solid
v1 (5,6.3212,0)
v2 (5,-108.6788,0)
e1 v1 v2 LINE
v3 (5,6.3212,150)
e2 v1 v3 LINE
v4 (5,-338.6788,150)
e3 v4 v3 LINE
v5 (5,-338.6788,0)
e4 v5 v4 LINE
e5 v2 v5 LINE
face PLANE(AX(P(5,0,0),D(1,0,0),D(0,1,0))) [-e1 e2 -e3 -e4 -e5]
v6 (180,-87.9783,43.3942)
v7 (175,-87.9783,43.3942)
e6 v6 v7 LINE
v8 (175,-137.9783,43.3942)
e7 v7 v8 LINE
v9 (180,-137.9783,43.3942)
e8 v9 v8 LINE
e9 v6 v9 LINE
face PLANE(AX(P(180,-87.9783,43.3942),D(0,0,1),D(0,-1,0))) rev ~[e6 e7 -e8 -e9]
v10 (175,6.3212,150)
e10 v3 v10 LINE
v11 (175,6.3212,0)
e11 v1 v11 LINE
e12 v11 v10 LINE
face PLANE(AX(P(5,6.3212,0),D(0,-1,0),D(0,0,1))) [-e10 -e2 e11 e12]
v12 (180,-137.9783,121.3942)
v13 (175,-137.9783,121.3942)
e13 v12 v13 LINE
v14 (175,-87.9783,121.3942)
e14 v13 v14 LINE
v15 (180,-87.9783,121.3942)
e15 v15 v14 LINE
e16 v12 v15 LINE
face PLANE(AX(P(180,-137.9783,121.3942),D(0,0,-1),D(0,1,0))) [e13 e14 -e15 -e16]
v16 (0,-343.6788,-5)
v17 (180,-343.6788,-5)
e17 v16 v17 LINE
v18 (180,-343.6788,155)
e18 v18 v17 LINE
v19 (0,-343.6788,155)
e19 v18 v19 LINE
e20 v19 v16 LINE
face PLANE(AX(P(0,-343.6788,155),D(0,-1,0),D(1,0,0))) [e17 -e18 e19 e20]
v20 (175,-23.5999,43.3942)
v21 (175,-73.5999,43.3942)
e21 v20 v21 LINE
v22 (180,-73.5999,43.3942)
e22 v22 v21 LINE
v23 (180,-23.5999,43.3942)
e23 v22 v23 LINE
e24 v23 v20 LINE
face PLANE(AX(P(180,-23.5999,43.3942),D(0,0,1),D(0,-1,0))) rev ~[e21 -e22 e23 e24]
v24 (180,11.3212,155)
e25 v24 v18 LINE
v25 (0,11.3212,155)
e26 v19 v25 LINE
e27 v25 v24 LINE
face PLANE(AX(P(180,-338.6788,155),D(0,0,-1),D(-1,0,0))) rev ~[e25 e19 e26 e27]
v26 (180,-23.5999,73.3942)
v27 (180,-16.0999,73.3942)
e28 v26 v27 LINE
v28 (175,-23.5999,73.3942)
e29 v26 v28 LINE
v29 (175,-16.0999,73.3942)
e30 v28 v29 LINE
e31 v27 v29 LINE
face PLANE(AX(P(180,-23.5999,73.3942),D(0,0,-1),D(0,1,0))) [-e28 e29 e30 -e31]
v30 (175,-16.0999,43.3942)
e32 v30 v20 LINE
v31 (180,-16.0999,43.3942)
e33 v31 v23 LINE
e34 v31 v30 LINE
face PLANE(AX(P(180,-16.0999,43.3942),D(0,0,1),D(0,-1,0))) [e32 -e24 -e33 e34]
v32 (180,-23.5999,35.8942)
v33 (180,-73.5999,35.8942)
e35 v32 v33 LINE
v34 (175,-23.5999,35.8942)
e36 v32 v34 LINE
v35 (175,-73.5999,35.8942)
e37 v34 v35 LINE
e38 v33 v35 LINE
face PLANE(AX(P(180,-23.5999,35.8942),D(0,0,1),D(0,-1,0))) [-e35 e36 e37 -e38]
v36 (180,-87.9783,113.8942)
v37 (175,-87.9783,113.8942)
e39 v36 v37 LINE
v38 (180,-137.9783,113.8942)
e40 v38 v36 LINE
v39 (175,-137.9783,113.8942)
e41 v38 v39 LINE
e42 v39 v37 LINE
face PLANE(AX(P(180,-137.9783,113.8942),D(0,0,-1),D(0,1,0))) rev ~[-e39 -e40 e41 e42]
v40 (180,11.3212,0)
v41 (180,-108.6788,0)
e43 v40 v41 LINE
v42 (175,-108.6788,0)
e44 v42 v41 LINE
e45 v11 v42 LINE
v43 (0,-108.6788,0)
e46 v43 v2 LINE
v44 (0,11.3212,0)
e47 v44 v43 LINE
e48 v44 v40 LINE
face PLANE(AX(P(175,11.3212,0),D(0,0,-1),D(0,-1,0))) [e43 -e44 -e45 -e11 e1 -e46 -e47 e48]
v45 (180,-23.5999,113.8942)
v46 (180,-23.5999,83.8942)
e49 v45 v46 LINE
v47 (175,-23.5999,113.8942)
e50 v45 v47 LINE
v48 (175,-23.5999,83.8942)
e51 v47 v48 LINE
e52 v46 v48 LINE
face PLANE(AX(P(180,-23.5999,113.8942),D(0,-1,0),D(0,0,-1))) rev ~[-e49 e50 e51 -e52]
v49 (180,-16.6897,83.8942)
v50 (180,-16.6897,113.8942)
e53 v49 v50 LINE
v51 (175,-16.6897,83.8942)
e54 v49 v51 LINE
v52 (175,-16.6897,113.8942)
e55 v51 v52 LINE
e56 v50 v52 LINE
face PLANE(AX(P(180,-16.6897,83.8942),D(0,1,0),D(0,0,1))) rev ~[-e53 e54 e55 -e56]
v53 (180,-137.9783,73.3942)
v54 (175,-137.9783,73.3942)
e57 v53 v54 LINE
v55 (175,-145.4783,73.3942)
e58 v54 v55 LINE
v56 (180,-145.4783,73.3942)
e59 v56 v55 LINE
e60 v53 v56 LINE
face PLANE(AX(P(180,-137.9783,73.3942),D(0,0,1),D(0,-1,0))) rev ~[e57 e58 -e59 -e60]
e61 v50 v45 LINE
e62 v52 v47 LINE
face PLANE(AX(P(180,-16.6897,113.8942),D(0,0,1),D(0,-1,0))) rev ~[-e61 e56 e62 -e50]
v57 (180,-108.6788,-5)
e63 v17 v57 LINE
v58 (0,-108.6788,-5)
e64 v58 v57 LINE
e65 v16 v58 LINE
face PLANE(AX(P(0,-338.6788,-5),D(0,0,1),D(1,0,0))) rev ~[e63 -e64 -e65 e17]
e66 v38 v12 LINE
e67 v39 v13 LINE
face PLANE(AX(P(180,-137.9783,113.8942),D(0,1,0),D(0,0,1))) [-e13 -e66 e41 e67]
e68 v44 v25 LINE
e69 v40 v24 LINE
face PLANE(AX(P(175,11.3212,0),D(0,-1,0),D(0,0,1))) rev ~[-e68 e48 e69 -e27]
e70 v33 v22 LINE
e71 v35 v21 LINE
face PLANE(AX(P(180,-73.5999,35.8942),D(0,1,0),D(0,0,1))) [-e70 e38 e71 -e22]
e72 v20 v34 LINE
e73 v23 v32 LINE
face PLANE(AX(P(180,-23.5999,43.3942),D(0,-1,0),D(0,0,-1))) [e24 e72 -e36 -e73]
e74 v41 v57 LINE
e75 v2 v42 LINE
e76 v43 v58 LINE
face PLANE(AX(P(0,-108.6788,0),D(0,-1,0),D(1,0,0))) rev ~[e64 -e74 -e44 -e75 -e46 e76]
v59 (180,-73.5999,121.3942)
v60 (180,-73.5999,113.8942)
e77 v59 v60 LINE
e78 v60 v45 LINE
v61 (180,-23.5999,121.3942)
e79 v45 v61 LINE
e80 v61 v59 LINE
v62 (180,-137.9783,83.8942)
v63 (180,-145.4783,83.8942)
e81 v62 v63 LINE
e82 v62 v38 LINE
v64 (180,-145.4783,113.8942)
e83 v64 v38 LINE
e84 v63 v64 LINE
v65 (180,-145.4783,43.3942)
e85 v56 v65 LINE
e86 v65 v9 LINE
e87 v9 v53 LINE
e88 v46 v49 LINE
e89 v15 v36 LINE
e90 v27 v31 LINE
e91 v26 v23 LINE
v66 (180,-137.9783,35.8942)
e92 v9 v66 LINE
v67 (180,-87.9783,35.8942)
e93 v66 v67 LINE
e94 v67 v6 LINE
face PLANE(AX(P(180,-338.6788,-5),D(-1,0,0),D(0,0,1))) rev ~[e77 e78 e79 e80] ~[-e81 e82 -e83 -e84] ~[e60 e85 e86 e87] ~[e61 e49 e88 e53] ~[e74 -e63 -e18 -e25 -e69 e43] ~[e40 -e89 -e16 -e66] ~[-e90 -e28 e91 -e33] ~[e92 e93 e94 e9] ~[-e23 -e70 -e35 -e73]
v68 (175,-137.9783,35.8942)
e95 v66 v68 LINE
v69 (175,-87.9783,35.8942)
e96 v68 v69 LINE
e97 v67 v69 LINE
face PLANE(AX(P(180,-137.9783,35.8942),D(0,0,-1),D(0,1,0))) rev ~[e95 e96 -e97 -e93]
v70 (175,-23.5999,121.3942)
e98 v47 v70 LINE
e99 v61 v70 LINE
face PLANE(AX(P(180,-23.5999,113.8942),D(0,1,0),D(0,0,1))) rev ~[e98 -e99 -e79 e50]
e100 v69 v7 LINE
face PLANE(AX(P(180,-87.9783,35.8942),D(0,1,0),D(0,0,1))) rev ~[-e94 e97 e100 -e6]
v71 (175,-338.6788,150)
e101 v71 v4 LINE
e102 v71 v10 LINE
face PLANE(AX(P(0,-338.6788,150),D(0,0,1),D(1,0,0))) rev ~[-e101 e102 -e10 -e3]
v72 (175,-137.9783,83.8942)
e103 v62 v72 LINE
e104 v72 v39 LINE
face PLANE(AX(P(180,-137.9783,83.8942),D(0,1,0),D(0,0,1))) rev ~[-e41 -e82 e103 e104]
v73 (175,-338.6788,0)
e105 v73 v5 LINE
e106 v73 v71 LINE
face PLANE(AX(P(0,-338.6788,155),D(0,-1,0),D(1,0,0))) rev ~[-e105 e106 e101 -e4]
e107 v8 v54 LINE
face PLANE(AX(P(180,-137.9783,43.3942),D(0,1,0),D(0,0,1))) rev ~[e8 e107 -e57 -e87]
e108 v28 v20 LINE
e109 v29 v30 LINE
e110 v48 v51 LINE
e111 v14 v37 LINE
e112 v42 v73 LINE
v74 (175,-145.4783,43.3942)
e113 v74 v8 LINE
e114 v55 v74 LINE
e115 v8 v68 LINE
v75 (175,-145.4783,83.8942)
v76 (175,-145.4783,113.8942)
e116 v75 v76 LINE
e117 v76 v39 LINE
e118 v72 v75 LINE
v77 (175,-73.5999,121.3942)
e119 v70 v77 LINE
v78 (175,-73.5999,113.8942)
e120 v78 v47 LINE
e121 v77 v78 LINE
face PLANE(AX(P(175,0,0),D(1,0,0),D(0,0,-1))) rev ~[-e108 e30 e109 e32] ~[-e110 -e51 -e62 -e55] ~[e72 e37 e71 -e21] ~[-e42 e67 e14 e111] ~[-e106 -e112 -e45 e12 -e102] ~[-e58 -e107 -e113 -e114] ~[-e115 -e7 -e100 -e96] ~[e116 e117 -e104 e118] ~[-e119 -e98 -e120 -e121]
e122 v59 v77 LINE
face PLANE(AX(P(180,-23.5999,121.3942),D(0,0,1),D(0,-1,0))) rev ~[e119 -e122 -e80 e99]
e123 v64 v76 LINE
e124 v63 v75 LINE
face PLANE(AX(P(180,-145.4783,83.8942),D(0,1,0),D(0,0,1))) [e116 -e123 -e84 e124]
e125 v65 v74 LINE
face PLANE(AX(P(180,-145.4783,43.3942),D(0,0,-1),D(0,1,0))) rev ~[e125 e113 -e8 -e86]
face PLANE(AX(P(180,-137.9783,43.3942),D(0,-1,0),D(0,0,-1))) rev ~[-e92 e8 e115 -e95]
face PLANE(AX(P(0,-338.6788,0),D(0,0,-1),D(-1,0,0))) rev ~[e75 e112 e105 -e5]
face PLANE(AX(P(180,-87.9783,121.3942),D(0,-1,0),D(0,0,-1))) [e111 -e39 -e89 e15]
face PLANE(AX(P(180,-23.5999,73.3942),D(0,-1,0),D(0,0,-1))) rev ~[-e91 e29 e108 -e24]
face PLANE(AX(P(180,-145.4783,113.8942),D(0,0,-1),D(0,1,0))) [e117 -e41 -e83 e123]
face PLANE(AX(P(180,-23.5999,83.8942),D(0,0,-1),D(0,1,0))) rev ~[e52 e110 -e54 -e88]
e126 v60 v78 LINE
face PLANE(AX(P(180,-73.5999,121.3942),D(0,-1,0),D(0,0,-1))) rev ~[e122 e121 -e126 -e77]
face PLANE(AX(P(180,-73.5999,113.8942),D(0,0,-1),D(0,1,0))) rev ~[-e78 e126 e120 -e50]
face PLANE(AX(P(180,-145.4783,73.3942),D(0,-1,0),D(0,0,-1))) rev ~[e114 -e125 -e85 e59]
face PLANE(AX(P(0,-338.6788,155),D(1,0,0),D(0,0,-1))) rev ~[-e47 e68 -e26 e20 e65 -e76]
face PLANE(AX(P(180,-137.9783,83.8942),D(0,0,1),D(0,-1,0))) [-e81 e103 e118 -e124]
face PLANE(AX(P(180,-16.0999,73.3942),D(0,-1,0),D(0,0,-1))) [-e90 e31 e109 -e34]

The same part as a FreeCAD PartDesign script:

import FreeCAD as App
import Part
import Sketcher

V = App.Vector


def add_polygon(sketch, points):
    """Adds a closed chain of lines whose ends are joined by coincident constraints."""
    first, n = sketch.GeometryCount, len(points)
    for a, b in zip(points, points[1:] + points[:1]):
        sketch.addGeometry(Part.LineSegment(App.Vector(*a, 0), App.Vector(*b, 0)), False)
    for i in range(n):
        sketch.addConstraint(Sketcher.Constraint("Coincident", first + i, 2, first + (i + 1) % n, 1))

doc = App.newDocument("Part")
body = doc.addObject("PartDesign::Body", "Body")

sketch1 = body.newObject("Sketcher::SketchObject", "Sketch")
sketch1.AttachmentSupport = (doc.getObject("YZ_Plane"), [""])
sketch1.MapMode = "FlatFace"
add_polygon(sketch1, [(-339, 0), (11, 0), (11, 150), (-339, 150)])
sketch1.addConstraint([
    Sketcher.Constraint("Horizontal", 0),
    Sketcher.Constraint("Vertical", 1),
    Sketcher.Constraint("Horizontal", 2),
    Sketcher.Constraint("Vertical", 3),
    Sketcher.Constraint("PointOnObject", 0, 2, -1),
    Sketcher.Constraint("DistanceX", 0, 1, 0, 2, 350.0),
    Sketcher.Constraint("DistanceY", 1, 1, 1, 2, 150.0),
    Sketcher.Constraint("DistanceX", -1, 1, 0, 2, 11.3212),
])
pad1 = body.newObject("PartDesign::Pad", "Pad")
pad1.Profile = sketch1
pad1.Length = 5

sketch2 = body.newObject("Sketcher::SketchObject", "Sketch001")
sketch2.AttachmentSupport = (doc.getObject("YZ_Plane"), [""])
sketch2.MapMode = "FlatFace"
sketch2.AttachmentOffset = App.Placement(V(0, 0, 5), App.Rotation())
add_polygon(sketch2, [(11.3, 0), (11.3, 150), (6.3, 150), (6.3, 0)])
sketch2.addConstraint([
    Sketcher.Constraint("Vertical", 0),
    Sketcher.Constraint("Horizontal", 1),
    Sketcher.Constraint("Vertical", 2),
    Sketcher.Constraint("Horizontal", 3),
    Sketcher.Constraint("PointOnObject", 2, 2, -1),
    Sketcher.Constraint("DistanceX", 1, 2, 1, 1, 5.0),
    Sketcher.Constraint("DistanceY", 0, 1, 0, 2, 150.0),
    Sketcher.Constraint("DistanceX", -1, 1, 0, 2, 11.3212),
])
pad2 = body.newObject("PartDesign::Pad", "Pad001")
pad2.Profile = sketch2
pad2.Length = 170

sketch3 = body.newObject("Sketcher::SketchObject", "Sketch002")
sketch3.AttachmentSupport = (doc.getObject("XY_Plane"), [""])
sketch3.MapMode = "FlatFace"
sketch3.AttachmentOffset = App.Placement(V(0, 0, 150), App.Rotation())
add_polygon(sketch3, [(175, 11), (0, 11), (0, -339), (175, -339)])
sketch3.addConstraint([
    Sketcher.Constraint("Horizontal", 0),
    Sketcher.Constraint("Vertical", 1),
    Sketcher.Constraint("Horizontal", 2),
    Sketcher.Constraint("Vertical", 3),
    Sketcher.Constraint("PointOnObject", 0, 2, -2),
    Sketcher.Constraint("DistanceY", 1, 2, 1, 1, 350.0),
    Sketcher.Constraint("DistanceX", 0, 2, 0, 1, 175.2508),
    Sketcher.Constraint("DistanceY", -1, 1, 0, 2, 11.3212),
])
pad3 = body.newObject("PartDesign::Pad", "Pad002")
pad3.Profile = sketch3
pad3.Length = 5

sketch4 = body.newObject("Sketcher::SketchObject", "Sketch003")
sketch4.AttachmentSupport = (doc.getObject("YZ_Plane"), [""])
sketch4.MapMode = "FlatFace"
sketch4.AttachmentOffset = App.Placement(V(0, 0, 175), App.Rotation())
add_polygon(sketch4, [(-339, 0), (11, 0), (11, 155), (-339, 155)])
sketch4.addConstraint([
    Sketcher.Constraint("Horizontal", 0),
    Sketcher.Constraint("Vertical", 1),
    Sketcher.Constraint("Horizontal", 2),
    Sketcher.Constraint("Vertical", 3),
    Sketcher.Constraint("PointOnObject", 0, 2, -1),
    Sketcher.Constraint("DistanceX", 0, 1, 0, 2, 350.0),
    Sketcher.Constraint("DistanceY", 1, 1, 1, 2, 155.0),
    Sketcher.Constraint("DistanceX", -1, 1, 0, 2, 11.3212),
])
pad4 = body.newObject("PartDesign::Pad", "Pad003")
pad4.Profile = sketch4
pad4.Length = 5

sketch5 = body.newObject("Sketcher::SketchObject", "Sketch004")
sketch5.AttachmentSupport = (doc.getObject("XY_Plane"), [""])
sketch5.MapMode = "FlatFace"
add_polygon(sketch5, [(180, -109), (180, -339), (0, -339), (0, -109)])
sketch5.addConstraint([
    Sketcher.Constraint("Vertical", 0),
    Sketcher.Constraint("Horizontal", 1),
    Sketcher.Constraint("Vertical", 2),
    Sketcher.Constraint("Horizontal", 3),
    Sketcher.Constraint("PointOnObject", 1, 2, -2),
    Sketcher.Constraint("DistanceY", 0, 2, 0, 1, 230.0),
    Sketcher.Constraint("DistanceX", 1, 2, 1, 1, 180.0),
    Sketcher.Constraint("DistanceY", 0, 2, -1, 1, 338.6788),
])
pad5 = body.newObject("PartDesign::Pad", "Pad004")
pad5.Profile = sketch5
pad5.Length = 5
pad5.Reversed = True

sketch6 = body.newObject("Sketcher::SketchObject", "Sketch005")
sketch6.AttachmentSupport = (doc.getObject("XZ_Plane"), [""])
sketch6.MapMode = "FlatFace"
sketch6.AttachmentOffset = App.Placement(V(0, 0, 338.6788), App.Rotation())
add_polygon(sketch6, [(180, -5), (180, 155), (0, 155), (0, -5)])
sketch6.addConstraint([
    Sketcher.Constraint("Vertical", 0),
    Sketcher.Constraint("Horizontal", 1),
    Sketcher.Constraint("Vertical", 2),
    Sketcher.Constraint("Horizontal", 3),
    Sketcher.Constraint("PointOnObject", 1, 2, -2),
    Sketcher.Constraint("DistanceX", 1, 2, 1, 1, 180.0),
    Sketcher.Constraint("DistanceY", 0, 1, 0, 2, 160.0),
    Sketcher.Constraint("DistanceY", -1, 1, 0, 2, 155.0),
])
pad6 = body.newObject("PartDesign::Pad", "Pad005")
pad6.Profile = sketch6
pad6.Length = 5

sketch7 = body.newObject("Sketcher::SketchObject", "Sketch006")
sketch7.AttachmentSupport = (doc.getObject("YZ_Plane"), [""])
sketch7.MapMode = "FlatFace"
sketch7.AttachmentOffset = App.Placement(V(0, 0, 180), App.Rotation())
add_polygon(sketch7, [(-17, 114), (-24, 114), (-24, 84), (-17, 84)])
add_polygon(sketch7, [(-74, 114), (-24, 114), (-24, 121), (-74, 121)])
add_polygon(sketch7, [(-16, 73), (-24, 73), (-24, 43), (-16, 43)])
add_polygon(sketch7, [(-138, 114), (-88, 114), (-88, 121), (-138, 121)])
add_polygon(sketch7, [(-24, 36), (-24, 43), (-74, 43), (-74, 36)])
add_polygon(sketch7, [(-138, 84), (-138, 114), (-145, 114), (-145, 84)])
add_polygon(sketch7, [(-138, 43), (-138, 73), (-145, 73), (-145, 43)])
add_polygon(sketch7, [(-88, 36), (-88, 43), (-138, 43), (-138, 36)])
sketch7.addConstraint([
    Sketcher.Constraint("Horizontal", 0),
    Sketcher.Constraint("Vertical", 1),
    Sketcher.Constraint("Horizontal", 2),
    Sketcher.Constraint("Vertical", 3),
    Sketcher.Constraint("Horizontal", 4),
    Sketcher.Constraint("Vertical", 5),
    Sketcher.Constraint("Horizontal", 6),
    Sketcher.Constraint("Vertical", 7),
    Sketcher.Constraint("Horizontal", 8),
    Sketcher.Constraint("Vertical", 9),
    Sketcher.Constraint("Horizontal", 10),
    Sketcher.Constraint("Vertical", 11),
    Sketcher.Constraint("Horizontal", 12),
    Sketcher.Constraint("Vertical", 13),
    Sketcher.Constraint("Horizontal", 14),
    Sketcher.Constraint("Vertical", 15),
    Sketcher.Constraint("Vertical", 16),
    Sketcher.Constraint("Horizontal", 17),
    Sketcher.Constraint("Vertical", 18),
    Sketcher.Constraint("Horizontal", 19),
    Sketcher.Constraint("Vertical", 20),
    Sketcher.Constraint("Horizontal", 21),
    Sketcher.Constraint("Vertical", 22),
    Sketcher.Constraint("Horizontal", 23),
    Sketcher.Constraint("Vertical", 24),
    Sketcher.Constraint("Horizontal", 25),
    Sketcher.Constraint("Vertical", 26),
    Sketcher.Constraint("Horizontal", 27),
    Sketcher.Constraint("Vertical", 28),
    Sketcher.Constraint("Horizontal", 29),
    Sketcher.Constraint("Vertical", 30),
    Sketcher.Constraint("Horizontal", 31),
    Sketcher.Constraint("Coincident", 4, 2, 0, 2),
    Sketcher.Constraint("Coincident", 16, 2, 9, 2),
    Sketcher.Constraint("Coincident", 20, 2, 15, 2),
    Sketcher.Constraint("Coincident", 29, 2, 27, 2),
    Sketcher.Constraint("Horizontal", 7, 2, 12, 2),
    Sketcher.Constraint("Horizontal", 6, 2, 13, 2),
    Sketcher.Constraint("Horizontal", 2, 2, 22, 2),
    Sketcher.Constraint("Horizontal", 11, 2, 24, 2),
    Sketcher.Constraint("Horizontal", 17, 2, 26, 2),
    Sketcher.Constraint("Horizontal", 19, 2, 30, 2),
    Sketcher.Constraint("Vertical", 5, 2, 8, 2),
    Sketcher.Constraint("Vertical", 7, 2, 17, 2),
    Sketcher.Constraint("Vertical", 23, 2, 24, 2),
    Sketcher.Constraint("Vertical", 22, 2, 25, 2),
    Sketcher.Constraint("Vertical", 13, 2, 28, 2),
    Sketcher.Constraint("Equal", 6, 12),
    Sketcher.Constraint("Equal", 10, 21),
    Sketcher.Constraint("Equal", 27, 5),
    Sketcher.Constraint("Equal", 3, 9),
    Sketcher.Constraint("Equal", 15, 16),
    Sketcher.Constraint("DistanceX", 4, 1, 4, 2, 50.0),
    Sketcher.Constraint("DistanceY", 1, 2, 1, 1, 30.0),
    Sketcher.Constraint("DistanceX", 8, 2, 8, 1, 7.5),
    Sketcher.Constraint("DistanceX", 0, 2, -1, 1, 23.6),
    Sketcher.Constraint("DistanceY", 8, 2, 1, 2, 10.5),
    Sketcher.Constraint("DistanceX", 0, 2, 0, 1, 6.9102),
    Sketcher.Constraint("DistanceY", -1, 1, 0, 2, 113.8942),
    Sketcher.Constraint("DistanceX", 12, 2, -1, 1, 87.9783),
])
pocket1 = body.newObject("PartDesign::Pocket", "Pocket")
pocket1.Profile = sketch7
pocket1.Length = 5

doc.recompute()
